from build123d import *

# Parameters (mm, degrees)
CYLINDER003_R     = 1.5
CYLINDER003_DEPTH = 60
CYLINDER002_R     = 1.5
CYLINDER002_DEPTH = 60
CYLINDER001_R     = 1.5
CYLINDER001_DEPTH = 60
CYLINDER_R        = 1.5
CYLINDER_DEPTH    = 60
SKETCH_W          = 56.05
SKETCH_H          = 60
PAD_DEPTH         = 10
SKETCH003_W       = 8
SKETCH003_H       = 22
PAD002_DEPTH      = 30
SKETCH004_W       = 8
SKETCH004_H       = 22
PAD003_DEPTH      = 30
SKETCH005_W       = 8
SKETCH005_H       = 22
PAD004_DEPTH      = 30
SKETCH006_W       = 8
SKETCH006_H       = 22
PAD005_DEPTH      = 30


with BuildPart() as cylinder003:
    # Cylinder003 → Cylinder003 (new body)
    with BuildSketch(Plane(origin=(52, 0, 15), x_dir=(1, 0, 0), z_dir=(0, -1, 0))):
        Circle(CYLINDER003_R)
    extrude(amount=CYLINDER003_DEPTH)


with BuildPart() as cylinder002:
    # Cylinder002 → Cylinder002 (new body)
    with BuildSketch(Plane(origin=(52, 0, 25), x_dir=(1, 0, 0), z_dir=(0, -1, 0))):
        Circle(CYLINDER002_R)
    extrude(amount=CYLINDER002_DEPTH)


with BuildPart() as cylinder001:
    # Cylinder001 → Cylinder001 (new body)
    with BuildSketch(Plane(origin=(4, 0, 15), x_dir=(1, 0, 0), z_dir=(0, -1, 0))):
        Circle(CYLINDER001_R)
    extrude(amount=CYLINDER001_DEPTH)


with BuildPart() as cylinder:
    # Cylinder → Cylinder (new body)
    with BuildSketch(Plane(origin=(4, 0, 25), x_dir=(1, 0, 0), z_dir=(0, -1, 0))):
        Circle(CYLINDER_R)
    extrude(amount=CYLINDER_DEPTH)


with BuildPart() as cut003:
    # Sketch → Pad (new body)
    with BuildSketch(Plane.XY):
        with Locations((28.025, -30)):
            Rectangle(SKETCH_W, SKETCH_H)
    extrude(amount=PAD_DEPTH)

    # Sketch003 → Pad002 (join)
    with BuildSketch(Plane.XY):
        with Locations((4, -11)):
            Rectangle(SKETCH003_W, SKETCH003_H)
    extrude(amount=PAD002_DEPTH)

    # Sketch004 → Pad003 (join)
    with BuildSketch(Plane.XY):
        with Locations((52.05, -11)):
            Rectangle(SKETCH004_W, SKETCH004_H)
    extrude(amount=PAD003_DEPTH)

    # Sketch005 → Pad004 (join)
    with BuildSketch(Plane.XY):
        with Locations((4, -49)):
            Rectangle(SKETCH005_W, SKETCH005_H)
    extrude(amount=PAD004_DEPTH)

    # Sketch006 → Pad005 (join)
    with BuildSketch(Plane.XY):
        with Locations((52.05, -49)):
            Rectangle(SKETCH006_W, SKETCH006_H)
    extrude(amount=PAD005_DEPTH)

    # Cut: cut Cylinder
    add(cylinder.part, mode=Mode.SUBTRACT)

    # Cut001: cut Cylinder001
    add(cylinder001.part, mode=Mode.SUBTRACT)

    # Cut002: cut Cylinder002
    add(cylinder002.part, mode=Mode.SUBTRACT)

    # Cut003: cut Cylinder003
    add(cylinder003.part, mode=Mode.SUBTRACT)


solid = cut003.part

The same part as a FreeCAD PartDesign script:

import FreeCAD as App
import Part
import Sketcher
from FreeCAD import Vector

doc = App.newDocument("Part")
body = doc.addObject("PartDesign::Body", "Body")

sketch1 = doc.addObject("Sketcher::SketchObject", "Sketch")
body.addObject(sketch1)
sketch1.AttachmentSupport = (doc.XZ_Plane, [""])
sketch1.MapMode = "FlatFace"
sketch1.addGeometry(Part.Circle(Vector(52, 15, 0), Vector(0, 0, 1), 1.5), False)
sketch1.addConstraint([
    Sketcher.Constraint("Diameter", 0, 3.0),
    Sketcher.Constraint("DistanceX", -1, 1, 0, 3, 52.0),
    Sketcher.Constraint("DistanceY", -1, 1, 0, 3, 15.0),
])
pad1 = doc.addObject("PartDesign::Pad", "Pad")
body.addObject(pad1)
pad1.Profile = sketch1
pad1.Length = 60
body2 = doc.addObject("PartDesign::Body", "Body001")

sketch2 = doc.addObject("Sketcher::SketchObject", "Sketch001")
body2.addObject(sketch2)
sketch2.AttachmentSupport = (doc.getObject("XZ_Plane001"), [""])
sketch2.MapMode = "FlatFace"
sketch2.addGeometry(Part.Circle(Vector(52, 25, 0), Vector(0, 0, 1), 1.5), False)
sketch2.addConstraint([
    Sketcher.Constraint("Diameter", 0, 3.0),
    Sketcher.Constraint("DistanceX", -1, 1, 0, 3, 52.0),
    Sketcher.Constraint("DistanceY", -1, 1, 0, 3, 25.0),
])
pad2 = doc.addObject("PartDesign::Pad", "Pad001")
body2.addObject(pad2)
pad2.Profile = sketch2
pad2.Length = 60
body3 = doc.addObject("PartDesign::Body", "Body002")

sketch3 = doc.addObject("Sketcher::SketchObject", "Sketch002")
body3.addObject(sketch3)
sketch3.AttachmentSupport = (doc.getObject("XZ_Plane002"), [""])
sketch3.MapMode = "FlatFace"
sketch3.addGeometry(Part.Circle(Vector(4, 15, 0), Vector(0, 0, 1), 1.5), False)
sketch3.addConstraint([
    Sketcher.Constraint("Diameter", 0, 3.0),
    Sketcher.Constraint("DistanceX", -1, 1, 0, 3, 4.0),
    Sketcher.Constraint("DistanceY", -1, 1, 0, 3, 15.0),
])
pad3 = doc.addObject("PartDesign::Pad", "Pad002")
body3.addObject(pad3)
pad3.Profile = sketch3
pad3.Length = 60
body4 = doc.addObject("PartDesign::Body", "Body003")

sketch4 = doc.addObject("Sketcher::SketchObject", "Sketch003")
body4.addObject(sketch4)
sketch4.AttachmentSupport = (doc.getObject("XZ_Plane003"), [""])
sketch4.MapMode = "FlatFace"
sketch4.addGeometry(Part.Circle(Vector(4, 25, 0), Vector(0, 0, 1), 1.5), False)
sketch4.addConstraint([
    Sketcher.Constraint("Diameter", 0, 3.0),
    Sketcher.Constraint("DistanceX", -1, 1, 0, 3, 4.0),
    Sketcher.Constraint("DistanceY", -1, 1, 0, 3, 25.0),
])
pad4 = doc.addObject("PartDesign::Pad", "Pad003")
body4.addObject(pad4)
pad4.Profile = sketch4
pad4.Length = 60
body5 = doc.addObject("PartDesign::Body", "Body004")

sketch5 = doc.addObject("Sketcher::SketchObject", "Sketch004")
body5.addObject(sketch5)
sketch5.AttachmentSupport = (doc.getObject("XY_Plane004"), [""])
sketch5.MapMode = "FlatFace"
sketch5.addGeometry([
    Part.LineSegment(Vector(0, 0, 0), Vector(0, -60, 0)),
    Part.LineSegment(Vector(0, -60, 0), Vector(56.05, -60, 0)),
    Part.LineSegment(Vector(56.05, -60, 0), Vector(56.05, 0, 0)),
    Part.LineSegment(Vector(56.05, 0, 0), Vector(0, 0, 0)),
], False)
sketch5.addConstraint([
    Sketcher.Constraint("Coincident", 0, 2, 1, 1),
    Sketcher.Constraint("Coincident", 1, 2, 2, 1),
    Sketcher.Constraint("Coincident", 2, 2, 3, 1),
    Sketcher.Constraint("Coincident", 3, 2, 0, 1),
    Sketcher.Constraint("Vertical", 0),
    Sketcher.Constraint("Horizontal", 1),
    Sketcher.Constraint("Vertical", 2),
    Sketcher.Constraint("Horizontal", 3),
    Sketcher.Constraint("Coincident", 3, 2, -1, 1),
    Sketcher.Constraint("DistanceY", 0, 2, 0, 1, 60.0),
    Sketcher.Constraint("DistanceX", 1, 1, 1, 2, 56.05),
])
pad5 = doc.addObject("PartDesign::Pad", "Pad004")
body5.addObject(pad5)
pad5.Profile = sketch5
pad5.Length = 10

sketch6 = doc.addObject("Sketcher::SketchObject", "Sketch005")
body5.addObject(sketch6)
sketch6.AttachmentSupport = (doc.getObject("XY_Plane004"), [""])
sketch6.MapMode = "FlatFace"
sketch6.addGeometry([
    Part.LineSegment(Vector(0, 0, 0), Vector(0, -22, 0)),
    Part.LineSegment(Vector(0, -22, 0), Vector(8, -22, 0)),
    Part.LineSegment(Vector(8, -22, 0), Vector(8, 0, 0)),
    Part.LineSegment(Vector(8, 0, 0), Vector(0, 0, 0)),
], False)
sketch6.addConstraint([
    Sketcher.Constraint("Coincident", 0, 2, 1, 1),
    Sketcher.Constraint("Coincident", 1, 2, 2, 1),
    Sketcher.Constraint("Coincident", 2, 2, 3, 1),
    Sketcher.Constraint("Coincident", 3, 2, 0, 1),
    Sketcher.Constraint("Vertical", 0),
    Sketcher.Constraint("Horizontal", 1),
    Sketcher.Constraint("Vertical", 2),
    Sketcher.Constraint("Horizontal", 3),
    Sketcher.Constraint("Coincident", 3, 2, -1, 1),
    Sketcher.Constraint("DistanceX", 1, 1, 1, 2, 8.0),
    Sketcher.Constraint("DistanceY", 0, 2, 0, 1, 22.0),
])
pad6 = doc.addObject("PartDesign::Pad", "Pad005")
body5.addObject(pad6)
pad6.Profile = sketch6
pad6.Length = 30

sketch7 = doc.addObject("Sketcher::SketchObject", "Sketch006")
body5.addObject(sketch7)
sketch7.AttachmentSupport = (doc.getObject("XY_Plane004"), [""])
sketch7.MapMode = "FlatFace"
sketch7.addGeometry([
    Part.LineSegment(Vector(48.05, 0, 0), Vector(48.05, -22, 0)),
    Part.LineSegment(Vector(48.05, -22, 0), Vector(56.05, -22, 0)),
    Part.LineSegment(Vector(56.05, -22, 0), Vector(56.05, 0, 0)),
    Part.LineSegment(Vector(56.05, 0, 0), Vector(48.05, 0, 0)),
], False)
sketch7.addConstraint([
    Sketcher.Constraint("Coincident", 0, 2, 1, 1),
    Sketcher.Constraint("Coincident", 1, 2, 2, 1),
    Sketcher.Constraint("Coincident", 2, 2, 3, 1),
    Sketcher.Constraint("Coincident", 3, 2, 0, 1),
    Sketcher.Constraint("Vertical", 0),
    Sketcher.Constraint("Horizontal", 1),
    Sketcher.Constraint("Vertical", 2),
    Sketcher.Constraint("Horizontal", 3),
    Sketcher.Constraint("PointOnObject", 2, 2, -1),
    Sketcher.Constraint("DistanceX", 1, 1, 1, 2, 8.0),
    Sketcher.Constraint("DistanceY", 0, 2, 0, 1, 22.0),
    Sketcher.Constraint("DistanceX", -1, 1, 0, 2, 48.05),
])
pad7 = doc.addObject("PartDesign::Pad", "Pad006")
body5.addObject(pad7)
pad7.Profile = sketch7
pad7.Length = 30

sketch8 = doc.addObject("Sketcher::SketchObject", "Sketch007")
body5.addObject(sketch8)
sketch8.AttachmentSupport = (doc.getObject("XY_Plane004"), [""])
sketch8.MapMode = "FlatFace"
sketch8.addGeometry([
    Part.LineSegment(Vector(0, -38, 0), Vector(0, -60, 0)),
    Part.LineSegment(Vector(0, -60, 0), Vector(8, -60, 0)),
    Part.LineSegment(Vector(8, -60, 0), Vector(8, -38, 0)),
    Part.LineSegment(Vector(8, -38, 0), Vector(0, -38, 0)),
], False)
sketch8.addConstraint([
    Sketcher.Constraint("Coincident", 0, 2, 1, 1),
    Sketcher.Constraint("Coincident", 1, 2, 2, 1),
    Sketcher.Constraint("Coincident", 2, 2, 3, 1),
    Sketcher.Constraint("Coincident", 3, 2, 0, 1),
    Sketcher.Constraint("Vertical", 0),
    Sketcher.Constraint("Horizontal", 1),
    Sketcher.Constraint("Vertical", 2),
    Sketcher.Constraint("Horizontal", 3),
    Sketcher.Constraint("PointOnObject", 0, 2, -2),
    Sketcher.Constraint("DistanceX", 1, 1, 1, 2, 8.0),
    Sketcher.Constraint("DistanceY", 0, 2, 0, 1, 22.0),
    Sketcher.Constraint("DistanceY", 0, 2, -1, 1, 60.0),
])
pad8 = doc.addObject("PartDesign::Pad", "Pad007")
body5.addObject(pad8)
pad8.Profile = sketch8
pad8.Length = 30

sketch9 = doc.addObject("Sketcher::SketchObject", "Sketch008")
body5.addObject(sketch9)
sketch9.AttachmentSupport = (doc.getObject("XY_Plane004"), [""])
sketch9.MapMode = "FlatFace"
sketch9.addGeometry([
    Part.LineSegment(Vector(48.05, -38, 0), Vector(48.05, -60, 0)),
    Part.LineSegment(Vector(48.05, -60, 0), Vector(56.05, -60, 0)),
    Part.LineSegment(Vector(56.05, -60, 0), Vector(56.05, -38, 0)),
    Part.LineSegment(Vector(56.05, -38, 0), Vector(48.05, -38, 0)),
], False)
sketch9.addConstraint([
    Sketcher.Constraint("Coincident", 0, 2, 1, 1),
    Sketcher.Constraint("Coincident", 1, 2, 2, 1),
    Sketcher.Constraint("Coincident", 2, 2, 3, 1),
    Sketcher.Constraint("Coincident", 3, 2, 0, 1),
    Sketcher.Constraint("Vertical", 0),
    Sketcher.Constraint("Horizontal", 1),
    Sketcher.Constraint("Vertical", 2),
    Sketcher.Constraint("Horizontal", 3),
    Sketcher.Constraint("DistanceX", 1, 1, 1, 2, 8.0),
    Sketcher.Constraint("DistanceY", 0, 2, 0, 1, 22.0),
    Sketcher.Constraint("DistanceY", 0, 2, -1, 1, 60.0),
    Sketcher.Constraint("DistanceX", -1, 1, 0, 2, 48.05),
])
pad9 = doc.addObject("PartDesign::Pad", "Pad008")
body5.addObject(pad9)
pad9.Profile = sketch9
pad9.Length = 30
doc.recompute()

boolean = doc.addObject("PartDesign::Boolean", "Boolean")
body5.addObject(boolean)
boolean.Type = "Cut"
boolean.addObjects([body4])
doc.recompute()

boolean2 = doc.addObject("PartDesign::Boolean", "Boolean001")
body5.addObject(boolean2)
boolean2.Type = "Cut"
boolean2.addObjects([body3])
doc.recompute()

boolean3 = doc.addObject("PartDesign::Boolean", "Boolean002")
body5.addObject(boolean3)
boolean3.Type = "Cut"
boolean3.addObjects([body2])
doc.recompute()

boolean4 = doc.addObject("PartDesign::Boolean", "Boolean003")
body5.addObject(boolean4)
boolean4.Type = "Cut"
boolean4.addObjects([body])

doc.recompute()
